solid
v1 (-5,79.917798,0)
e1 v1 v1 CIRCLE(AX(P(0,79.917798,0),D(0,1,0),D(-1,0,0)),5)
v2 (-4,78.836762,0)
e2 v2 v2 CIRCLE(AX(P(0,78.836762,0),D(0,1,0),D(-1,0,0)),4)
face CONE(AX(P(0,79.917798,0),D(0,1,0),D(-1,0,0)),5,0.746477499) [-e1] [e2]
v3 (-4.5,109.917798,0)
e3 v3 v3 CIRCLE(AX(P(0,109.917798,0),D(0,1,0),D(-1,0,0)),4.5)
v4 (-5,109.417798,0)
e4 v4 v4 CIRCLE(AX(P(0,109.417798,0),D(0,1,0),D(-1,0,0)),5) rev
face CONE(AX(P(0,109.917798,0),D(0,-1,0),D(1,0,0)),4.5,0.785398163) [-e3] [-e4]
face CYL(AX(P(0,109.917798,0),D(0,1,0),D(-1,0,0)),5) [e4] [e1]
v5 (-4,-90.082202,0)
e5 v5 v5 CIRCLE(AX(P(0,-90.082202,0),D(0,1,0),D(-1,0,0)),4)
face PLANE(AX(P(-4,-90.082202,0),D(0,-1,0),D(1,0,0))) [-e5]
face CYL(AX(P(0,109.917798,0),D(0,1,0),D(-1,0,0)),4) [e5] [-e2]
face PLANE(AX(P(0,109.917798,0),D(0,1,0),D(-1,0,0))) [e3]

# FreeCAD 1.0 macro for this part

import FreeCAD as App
import Part
import Sketcher
Q = App.Units.Quantity


def edges_at(feature, points):
    """Names of the edges that pass closest to the given points."""
    edges = feature.Shape.Edges
    near = lambda p: min(range(len(edges)), key=lambda i: edges[i].distToShape(Part.Vertex(*p))[0])
    return sorted({f"Edge{near(p) + 1}" for p in points})

doc = App.newDocument("Part")
body = doc.addObject("PartDesign::Body", "Body")

# Sketch on XY plane
sketch1 = doc.addObject("Sketcher::SketchObject", "Sketch")
body.addObject(sketch1)
sketch1.AttachmentSupport = (doc.XY_Plane, [""])
sketch1.MapMode = "FlatFace"
sketch1.addGeometry(Part.LineSegment(App.Vector(0, 109.9, 0), App.Vector(-5, 109.9, 0)), False)
sketch1.addGeometry(Part.LineSegment(App.Vector(-5, 109.9, 0), App.Vector(-5, 79.9, 0)), False)
sketch1.addGeometry(Part.LineSegment(App.Vector(-5, 79.9, 0), App.Vector(-4, 78.8, 0)), False)
sketch1.addGeometry(Part.LineSegment(App.Vector(-4, 78.8, 0), App.Vector(-4, -90.1, 0)), False)
sketch1.addGeometry(Part.LineSegment(App.Vector(-4, -90.1, 0), App.Vector(0, -90.1, 0)), False)
sketch1.addGeometry(Part.LineSegment(App.Vector(0, -90.1, 0), App.Vector(0, 109.9, 0)), False)
sketch1.addConstraint(Sketcher.Constraint("Coincident", 0, 2, 1, 1))
sketch1.addConstraint(Sketcher.Constraint("Coincident", 1, 2, 2, 1))
sketch1.addConstraint(Sketcher.Constraint("Coincident", 2, 2, 3, 1))
sketch1.addConstraint(Sketcher.Constraint("Coincident", 3, 2, 4, 1))
sketch1.addConstraint(Sketcher.Constraint("Coincident", 4, 2, 5, 1))
sketch1.addConstraint(Sketcher.Constraint("Coincident", 5, 2, 0, 1))
sketch1.addConstraint(Sketcher.Constraint("Horizontal", 0))
sketch1.addConstraint(Sketcher.Constraint("Vertical", 1))
sketch1.addConstraint(Sketcher.Constraint("Vertical", 3))
sketch1.addConstraint(Sketcher.Constraint("Horizontal", 4))
sketch1.addConstraint(Sketcher.Constraint("Vertical", 5))
sketch1.addConstraint(Sketcher.Constraint("PointOnObject", 4, 2, -2))
sketch1.addConstraint(Sketcher.Constraint("DistanceX", 0, 2, 0, 1, Q("5 mm")))
sketch1.addConstraint(Sketcher.Constraint("DistanceX", 4, 1, 4, 2, Q("4 mm")))
sketch1.addConstraint(Sketcher.Constraint("DistanceY", 1, 2, 1, 1, Q("30 mm")))
sketch1.addConstraint(Sketcher.Constraint("DistanceY", 5, 1, 5, 2, Q("200 mm")))
sketch1.addConstraint(Sketcher.Constraint("Angle", 2, Q("-47.22999 deg")))
sketch1.addConstraint(Sketcher.Constraint("DistanceY", -1, 1, 0, 2, Q("109.917798 mm")))
revolution = doc.addObject("PartDesign::Revolution", "Revolution")
body.addObject(revolution)
revolution.Profile = sketch1
revolution.ReferenceAxis = (sketch1, ["V_Axis"])
revolution.Angle = 360
doc.recompute()

chamfer = doc.addObject("PartDesign::Chamfer", "Chamfer")
body.addObject(chamfer)
chamfer.Base = (revolution, edges_at(revolution, [(5, 109.918, 0)]))
chamfer.Size = 0.5

doc.recompute()
